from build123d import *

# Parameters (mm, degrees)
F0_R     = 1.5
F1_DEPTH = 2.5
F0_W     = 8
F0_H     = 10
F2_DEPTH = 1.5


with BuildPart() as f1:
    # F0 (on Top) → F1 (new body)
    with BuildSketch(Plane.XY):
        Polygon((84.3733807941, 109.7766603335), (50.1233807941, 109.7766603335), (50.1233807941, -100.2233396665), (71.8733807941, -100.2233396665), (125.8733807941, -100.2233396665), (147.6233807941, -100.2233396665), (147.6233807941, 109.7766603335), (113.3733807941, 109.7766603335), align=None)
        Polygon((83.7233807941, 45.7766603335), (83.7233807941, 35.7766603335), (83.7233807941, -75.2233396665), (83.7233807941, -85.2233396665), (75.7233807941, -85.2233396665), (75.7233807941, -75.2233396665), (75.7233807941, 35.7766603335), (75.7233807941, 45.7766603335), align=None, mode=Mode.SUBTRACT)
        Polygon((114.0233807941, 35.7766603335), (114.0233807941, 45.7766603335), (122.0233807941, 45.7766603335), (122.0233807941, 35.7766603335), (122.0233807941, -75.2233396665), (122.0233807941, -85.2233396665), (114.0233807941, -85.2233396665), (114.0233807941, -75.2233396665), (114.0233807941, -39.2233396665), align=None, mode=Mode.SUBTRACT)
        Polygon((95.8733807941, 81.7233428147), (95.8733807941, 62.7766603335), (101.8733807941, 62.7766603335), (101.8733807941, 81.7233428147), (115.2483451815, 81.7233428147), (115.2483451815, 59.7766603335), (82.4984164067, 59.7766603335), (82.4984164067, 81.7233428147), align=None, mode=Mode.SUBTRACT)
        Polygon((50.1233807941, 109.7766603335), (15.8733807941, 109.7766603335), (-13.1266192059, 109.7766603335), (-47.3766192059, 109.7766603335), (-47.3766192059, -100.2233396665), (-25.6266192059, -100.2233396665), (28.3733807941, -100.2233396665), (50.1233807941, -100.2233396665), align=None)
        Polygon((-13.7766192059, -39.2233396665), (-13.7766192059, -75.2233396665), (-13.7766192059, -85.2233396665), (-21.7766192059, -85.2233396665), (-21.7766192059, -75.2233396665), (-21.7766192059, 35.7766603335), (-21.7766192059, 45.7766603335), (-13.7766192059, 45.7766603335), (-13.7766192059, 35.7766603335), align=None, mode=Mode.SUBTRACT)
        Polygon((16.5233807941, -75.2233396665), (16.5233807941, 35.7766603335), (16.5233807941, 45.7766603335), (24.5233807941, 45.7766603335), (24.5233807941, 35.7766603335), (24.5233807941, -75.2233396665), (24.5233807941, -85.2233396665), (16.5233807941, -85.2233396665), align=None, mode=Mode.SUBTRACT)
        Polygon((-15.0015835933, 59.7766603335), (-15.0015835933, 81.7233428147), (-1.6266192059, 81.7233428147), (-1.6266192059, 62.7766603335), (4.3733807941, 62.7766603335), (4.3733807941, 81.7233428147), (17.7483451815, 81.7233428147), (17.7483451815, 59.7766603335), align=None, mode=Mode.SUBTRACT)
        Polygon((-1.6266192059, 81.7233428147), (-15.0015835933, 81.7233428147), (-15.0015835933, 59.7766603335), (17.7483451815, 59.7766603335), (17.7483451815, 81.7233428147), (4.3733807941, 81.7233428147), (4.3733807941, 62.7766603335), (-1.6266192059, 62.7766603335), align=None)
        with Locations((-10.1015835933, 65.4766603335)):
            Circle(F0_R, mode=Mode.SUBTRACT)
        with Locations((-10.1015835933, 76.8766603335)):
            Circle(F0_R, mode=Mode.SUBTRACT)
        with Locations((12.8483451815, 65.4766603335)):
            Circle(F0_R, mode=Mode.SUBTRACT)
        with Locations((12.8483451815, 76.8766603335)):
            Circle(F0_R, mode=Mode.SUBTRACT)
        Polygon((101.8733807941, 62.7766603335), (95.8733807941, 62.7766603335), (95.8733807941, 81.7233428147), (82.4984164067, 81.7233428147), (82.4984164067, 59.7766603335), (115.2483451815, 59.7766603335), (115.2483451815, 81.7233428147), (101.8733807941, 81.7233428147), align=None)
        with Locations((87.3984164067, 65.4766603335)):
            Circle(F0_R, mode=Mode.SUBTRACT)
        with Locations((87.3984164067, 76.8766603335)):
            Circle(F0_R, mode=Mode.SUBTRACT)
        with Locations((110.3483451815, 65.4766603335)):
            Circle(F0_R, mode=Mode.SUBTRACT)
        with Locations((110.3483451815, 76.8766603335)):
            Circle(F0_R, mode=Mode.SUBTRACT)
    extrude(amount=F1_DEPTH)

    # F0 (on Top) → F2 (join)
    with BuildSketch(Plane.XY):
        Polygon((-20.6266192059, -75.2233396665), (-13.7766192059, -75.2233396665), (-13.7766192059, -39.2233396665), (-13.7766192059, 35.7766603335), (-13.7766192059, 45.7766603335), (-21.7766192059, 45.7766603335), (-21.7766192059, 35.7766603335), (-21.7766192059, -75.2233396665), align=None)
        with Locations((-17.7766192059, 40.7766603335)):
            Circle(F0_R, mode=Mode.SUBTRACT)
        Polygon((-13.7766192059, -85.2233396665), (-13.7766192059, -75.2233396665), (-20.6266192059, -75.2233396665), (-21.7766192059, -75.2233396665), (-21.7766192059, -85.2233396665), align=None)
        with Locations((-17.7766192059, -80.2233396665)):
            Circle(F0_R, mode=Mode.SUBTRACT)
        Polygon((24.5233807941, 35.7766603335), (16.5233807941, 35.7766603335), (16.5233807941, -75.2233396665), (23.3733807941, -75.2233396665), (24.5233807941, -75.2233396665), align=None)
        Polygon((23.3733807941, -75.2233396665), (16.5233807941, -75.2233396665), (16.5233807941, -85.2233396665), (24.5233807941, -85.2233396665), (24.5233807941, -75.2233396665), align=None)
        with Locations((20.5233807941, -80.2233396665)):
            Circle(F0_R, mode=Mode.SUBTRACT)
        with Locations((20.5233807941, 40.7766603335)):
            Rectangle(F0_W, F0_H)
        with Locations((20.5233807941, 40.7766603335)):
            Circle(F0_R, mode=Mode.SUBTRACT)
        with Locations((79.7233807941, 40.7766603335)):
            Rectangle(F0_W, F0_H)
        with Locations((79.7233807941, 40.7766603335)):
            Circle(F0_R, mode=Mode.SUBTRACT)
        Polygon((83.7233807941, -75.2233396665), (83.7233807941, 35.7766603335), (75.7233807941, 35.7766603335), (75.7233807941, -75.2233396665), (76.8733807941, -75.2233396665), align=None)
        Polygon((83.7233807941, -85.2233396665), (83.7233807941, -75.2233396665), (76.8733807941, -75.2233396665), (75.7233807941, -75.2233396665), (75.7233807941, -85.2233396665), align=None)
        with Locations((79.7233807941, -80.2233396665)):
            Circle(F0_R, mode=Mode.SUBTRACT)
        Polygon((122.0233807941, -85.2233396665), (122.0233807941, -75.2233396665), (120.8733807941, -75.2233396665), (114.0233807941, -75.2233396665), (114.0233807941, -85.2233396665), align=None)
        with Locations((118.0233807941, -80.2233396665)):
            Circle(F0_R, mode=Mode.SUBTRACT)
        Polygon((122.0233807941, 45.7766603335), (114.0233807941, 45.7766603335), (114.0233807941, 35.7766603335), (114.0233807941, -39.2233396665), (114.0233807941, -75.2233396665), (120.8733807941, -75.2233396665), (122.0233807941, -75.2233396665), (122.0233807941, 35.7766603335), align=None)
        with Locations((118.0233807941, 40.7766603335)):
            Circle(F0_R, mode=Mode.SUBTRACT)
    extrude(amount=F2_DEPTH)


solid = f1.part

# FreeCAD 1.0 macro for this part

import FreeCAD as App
import Part
import Sketcher

V = App.Vector
Q = App.Units.Quantity

doc = App.newDocument("Part")
params = doc.addObject("Spreadsheet::Sheet", "Params")
for row, (alias, value) in enumerate([
    ("sketch1_diameter", "3 mm"),
    ("sketch1_width", "195 mm"),
    ("sketch1_width2", "8 mm"),
    ("sketch1_height", "210 mm"),
    ("sketch1_height2", "131 mm"),
    ("pad1_length", "2.5 mm"),
    ("sketch2_diameter", "3 mm"),
    ("sketch2_width", "8 mm"),
    ("sketch2_height", "131 mm"),
    ("pad2_length", "1.5 mm"),
], start=1):
    params.set(f"A{row}", alias)
    params.set(f"B{row}", "=" + value)
    params.setAlias(f"B{row}", alias)

body = doc.addObject("PartDesign::Body", "Body")

# Sketch on XY plane
sketch1 = body.newObject("Sketcher::SketchObject", "Sketch")
sketch1.AttachmentSupport = (doc.getObject("XY_Plane"), [""])
sketch1.MapMode = "FlatFace"
sketch1.addGeometry([
    Part.LineSegment(V(147.6, 109.8, 0), V(-47.4, 109.8, 0)),  # 0
    Part.LineSegment(V(-47.4, 109.8, 0), V(-47.4, -100.2, 0)),  # 1
    Part.LineSegment(V(-47.4, -100.2, 0), V(147.6, -100.2, 0)),  # 2
    Part.LineSegment(V(147.6, -100.2, 0), V(147.6, 109.8, 0)),  # 3
    Part.LineSegment(V(-13.8, 45.8, 0), V(-13.8, -85.2, 0)),  # 4
    Part.LineSegment(V(-13.8, -85.2, 0), V(-21.8, -85.2, 0)),  # 5
    Part.LineSegment(V(-21.8, -85.2, 0), V(-21.8, 45.8, 0)),  # 6
    Part.LineSegment(V(-21.8, 45.8, 0), V(-13.8, 45.8, 0)),  # 7
    Part.LineSegment(V(16.5, -85.2, 0), V(16.5, 45.8, 0)),  # 8
    Part.LineSegment(V(16.5, 45.8, 0), V(24.5, 45.8, 0)),  # 9
    Part.LineSegment(V(24.5, 45.8, 0), V(24.5, -85.2, 0)),  # 10
    Part.LineSegment(V(24.5, -85.2, 0), V(16.5, -85.2, 0)),  # 11
    Part.LineSegment(V(75.7, 45.8, 0), V(83.7, 45.8, 0)),  # 12
    Part.LineSegment(V(83.7, 45.8, 0), V(83.7, -85.2, 0)),  # 13
    Part.LineSegment(V(83.7, -85.2, 0), V(75.7, -85.2, 0)),  # 14
    Part.LineSegment(V(75.7, -85.2, 0), V(75.7, 45.8, 0)),  # 15
    Part.LineSegment(V(114, -85.2, 0), V(114, 45.8, 0)),  # 16
    Part.LineSegment(V(114, 45.8, 0), V(122, 45.8, 0)),  # 17
    Part.LineSegment(V(122, 45.8, 0), V(122, -85.2, 0)),  # 18
    Part.LineSegment(V(122, -85.2, 0), V(114, -85.2, 0)),  # 19
    Part.Circle(V(-10.1, 65.5, 0), V(0, 0, 1), 1.5),  # 20
    Part.Circle(V(-10.1, 76.9, 0), V(0, 0, 1), 1.5),  # 21
    Part.Circle(V(12.8, 65.5, 0), V(0, 0, 1), 1.5),  # 22
    Part.Circle(V(12.8, 76.9, 0), V(0, 0, 1), 1.5),  # 23
    Part.Circle(V(87.4, 65.5, 0), V(0, 0, 1), 1.5),  # 24
    Part.Circle(V(87.4, 76.9, 0), V(0, 0, 1), 1.5),  # 25
    Part.Circle(V(110.3, 65.5, 0), V(0, 0, 1), 1.5),  # 26
    Part.Circle(V(110.3, 76.9, 0), V(0, 0, 1), 1.5),  # 27
], False)
sketch1.addConstraint([
    Sketcher.Constraint("Coincident", 0, 2, 1, 1),
    Sketcher.Constraint("Coincident", 1, 2, 2, 1),
    Sketcher.Constraint("Coincident", 2, 2, 3, 1),
    Sketcher.Constraint("Coincident", 3, 2, 0, 1),
    Sketcher.Constraint("Coincident", 4, 2, 5, 1),
    Sketcher.Constraint("Coincident", 5, 2, 6, 1),
    Sketcher.Constraint("Coincident", 6, 2, 7, 1),
    Sketcher.Constraint("Coincident", 7, 2, 4, 1),
    Sketcher.Constraint("Coincident", 8, 2, 9, 1),
    Sketcher.Constraint("Coincident", 9, 2, 10, 1),
    Sketcher.Constraint("Coincident", 10, 2, 11, 1),
    Sketcher.Constraint("Coincident", 11, 2, 8, 1),
    Sketcher.Constraint("Coincident", 12, 2, 13, 1),
    Sketcher.Constraint("Coincident", 13, 2, 14, 1),
    Sketcher.Constraint("Coincident", 14, 2, 15, 1),
    Sketcher.Constraint("Coincident", 15, 2, 12, 1),
    Sketcher.Constraint("Coincident", 16, 2, 17, 1),
    Sketcher.Constraint("Coincident", 17, 2, 18, 1),
    Sketcher.Constraint("Coincident", 18, 2, 19, 1),
    Sketcher.Constraint("Coincident", 19, 2, 16, 1),
    Sketcher.Constraint("Horizontal", 0),
    Sketcher.Constraint("Vertical", 1),
    Sketcher.Constraint("Horizontal", 2),
    Sketcher.Constraint("Vertical", 3),
    Sketcher.Constraint("Vertical", 4),
    Sketcher.Constraint("Horizontal", 5),
    Sketcher.Constraint("Vertical", 6),
    Sketcher.Constraint("Horizontal", 7),
    Sketcher.Constraint("Vertical", 8),
    Sketcher.Constraint("Horizontal", 9),
    Sketcher.Constraint("Vertical", 10),
    Sketcher.Constraint("Horizontal", 11),
    Sketcher.Constraint("Horizontal", 12),
    Sketcher.Constraint("Vertical", 13),
    Sketcher.Constraint("Horizontal", 14),
    Sketcher.Constraint("Vertical", 15),
    Sketcher.Constraint("Vertical", 16),
    Sketcher.Constraint("Horizontal", 17),
    Sketcher.Constraint("Vertical", 18),
    Sketcher.Constraint("Horizontal", 19),
    Sketcher.Constraint("Equal", 20, 21),
    Sketcher.Constraint("Equal", 21, 22),
    Sketcher.Constraint("Equal", 22, 23),
    Sketcher.Constraint("Equal", 23, 24),
    Sketcher.Constraint("Equal", 24, 25),
    Sketcher.Constraint("Equal", 25, 26),
    Sketcher.Constraint("Equal", 26, 27),
    Sketcher.Constraint("Horizontal", 20, 3, 22, 3),
    Sketcher.Constraint("Horizontal", 21, 3, 23, 3),
    Sketcher.Constraint("Horizontal", 22, 3, 24, 3),
    Sketcher.Constraint("Horizontal", 23, 3, 25, 3),
    Sketcher.Constraint("Horizontal", 24, 3, 26, 3),
    Sketcher.Constraint("Horizontal", 25, 3, 27, 3),
    Sketcher.Constraint("Horizontal", 7, 2, 8, 2),
    Sketcher.Constraint("Horizontal", 5, 2, 10, 2),
    Sketcher.Constraint("Horizontal", 9, 2, 12, 2),
    Sketcher.Constraint("Horizontal", 11, 2, 13, 2),
    Sketcher.Constraint("Horizontal", 15, 2, 16, 2),
    Sketcher.Constraint("Horizontal", 14, 2, 18, 2),
    Sketcher.Constraint("Vertical", 20, 3, 21, 3),
    Sketcher.Constraint("Vertical", 22, 3, 23, 3),
    Sketcher.Constraint("Vertical", 24, 3, 25, 3),
    Sketcher.Constraint("Vertical", 26, 3, 27, 3),
    Sketcher.Constraint("Equal", 7, 9),
    Sketcher.Constraint("Equal", 11, 12),
    Sketcher.Constraint("Equal", 14, 17),
    Sketcher.Constraint("Diameter", 20, Q("3 mm")),
    Sketcher.Constraint("DistanceX", 0, 2, 0, 1, Q("195 mm")),
    Sketcher.Constraint("DistanceX", 5, 2, 5, 1, Q("8 mm")),
    Sketcher.Constraint("DistanceY", 1, 2, 1, 1, Q("210 mm")),
    Sketcher.Constraint("DistanceY", 4, 2, 4, 1, Q("131 mm")),
    Sketcher.Constraint("DistanceY", 1, 2, 4, 2, Q("15 mm")),
    Sketcher.Constraint("DistanceY", 20, 3, 21, 3, Q("11.4 mm")),
    Sketcher.Constraint("DistanceX", 20, 3, 24, 3, Q("97.5 mm")),
    Sketcher.Constraint("DistanceX", 22, 3, 26, 3, Q("97.5 mm")),
    Sketcher.Constraint("DistanceY", 21, 3, 0, 2, Q("32.9 mm")),
    Sketcher.Constraint("DistanceX", 1, 2, 4, 2, Q("33.6 mm")),
    Sketcher.Constraint("DistanceX", 7, 2, 8, 2, Q("30.3 mm")),
    Sketcher.Constraint("DistanceX", 9, 2, 12, 2, Q("59.2 mm")),
    Sketcher.Constraint("DistanceX", 12, 2, 16, 2, Q("30.3 mm")),
    Sketcher.Constraint("DistanceY", -1, 1, 20, 3, Q("65.47666 mm")),
    Sketcher.Constraint("DistanceX", 0, 2, -1, 1, Q("47.376619 mm")),
    Sketcher.Constraint("DistanceX", 20, 3, 22, 3, Q("22.949929 mm")),
    Sketcher.Constraint("DistanceX", 20, 3, -1, 1, Q("10.101584 mm")),
])
sketch1.setExpression("Constraints[66]", "Params.sketch1_diameter")
sketch1.setExpression("Constraints[67]", "Params.sketch1_width")
sketch1.setExpression("Constraints[68]", "Params.sketch1_width2")
sketch1.setExpression("Constraints[69]", "Params.sketch1_height")
sketch1.setExpression("Constraints[70]", "Params.sketch1_height2")
pad1 = body.newObject("PartDesign::Pad", "Pad")
pad1.Profile = sketch1
pad1.setExpression("Length", "Params.pad1_length")

# Sketch on XY plane
sketch2 = body.newObject("Sketcher::SketchObject", "Sketch001")
sketch2.AttachmentSupport = (doc.getObject("XY_Plane"), [""])
sketch2.MapMode = "FlatFace"
sketch2.addGeometry([
    Part.LineSegment(V(-13.8, 45.8, 0), V(-21.8, 45.8, 0)),  # 0
    Part.LineSegment(V(-21.8, 45.8, 0), V(-21.8, -85.2, 0)),  # 1
    Part.LineSegment(V(-21.8, -85.2, 0), V(-13.8, -85.2, 0)),  # 2
    Part.LineSegment(V(-13.8, -85.2, 0), V(-13.8, 45.8, 0)),  # 3
    Part.Circle(V(-17.8, -80.2, 0), V(0, 0, 1), 1.5),  # 4
    Part.Circle(V(-17.8, 40.8, 0), V(0, 0, 1), 1.5),  # 5
    Part.LineSegment(V(24.5, -85.2, 0), V(24.5, 45.8, 0)),  # 6
    Part.LineSegment(V(24.5, 45.8, 0), V(16.5, 45.8, 0)),  # 7
    Part.LineSegment(V(16.5, 45.8, 0), V(16.5, -85.2, 0)),  # 8
    Part.LineSegment(V(16.5, -85.2, 0), V(24.5, -85.2, 0)),  # 9
    Part.Circle(V(20.5, -80.2, 0), V(0, 0, 1), 1.5),  # 10
    Part.Circle(V(20.5, 40.8, 0), V(0, 0, 1), 1.5),  # 11
    Part.LineSegment(V(75.7, 45.8, 0), V(75.7, -85.2, 0)),  # 12
    Part.LineSegment(V(75.7, -85.2, 0), V(83.7, -85.2, 0)),  # 13
    Part.LineSegment(V(83.7, -85.2, 0), V(83.7, 45.8, 0)),  # 14
    Part.LineSegment(V(83.7, 45.8, 0), V(75.7, 45.8, 0)),  # 15
    Part.Circle(V(79.7, -80.2, 0), V(0, 0, 1), 1.5),  # 16
    Part.Circle(V(79.7, 40.8, 0), V(0, 0, 1), 1.5),  # 17
    Part.LineSegment(V(122, -85.2, 0), V(122, 45.8, 0)),  # 18
    Part.LineSegment(V(122, 45.8, 0), V(114, 45.8, 0)),  # 19
    Part.LineSegment(V(114, 45.8, 0), V(114, -85.2, 0)),  # 20
    Part.LineSegment(V(114, -85.2, 0), V(122, -85.2, 0)),  # 21
    Part.Circle(V(118, -80.2, 0), V(0, 0, 1), 1.5),  # 22
    Part.Circle(V(118, 40.8, 0), V(0, 0, 1), 1.5),  # 23
], False)
sketch2.addConstraint([
    Sketcher.Constraint("Coincident", 0, 2, 1, 1),
    Sketcher.Constraint("Coincident", 1, 2, 2, 1),
    Sketcher.Constraint("Coincident", 2, 2, 3, 1),
    Sketcher.Constraint("Coincident", 3, 2, 0, 1),
    Sketcher.Constraint("Coincident", 6, 2, 7, 1),
    Sketcher.Constraint("Coincident", 7, 2, 8, 1),
    Sketcher.Constraint("Coincident", 8, 2, 9, 1),
    Sketcher.Constraint("Coincident", 9, 2, 6, 1),
    Sketcher.Constraint("Coincident", 12, 2, 13, 1),
    Sketcher.Constraint("Coincident", 13, 2, 14, 1),
    Sketcher.Constraint("Coincident", 14, 2, 15, 1),
    Sketcher.Constraint("Coincident", 15, 2, 12, 1),
    Sketcher.Constraint("Coincident", 18, 2, 19, 1),
    Sketcher.Constraint("Coincident", 19, 2, 20, 1),
    Sketcher.Constraint("Coincident", 20, 2, 21, 1),
    Sketcher.Constraint("Coincident", 21, 2, 18, 1),
    Sketcher.Constraint("Horizontal", 0),
    Sketcher.Constraint("Vertical", 1),
    Sketcher.Constraint("Horizontal", 2),
    Sketcher.Constraint("Vertical", 3),
    Sketcher.Constraint("Vertical", 6),
    Sketcher.Constraint("Horizontal", 7),
    Sketcher.Constraint("Vertical", 8),
    Sketcher.Constraint("Horizontal", 9),
    Sketcher.Constraint("Vertical", 12),
    Sketcher.Constraint("Horizontal", 13),
    Sketcher.Constraint("Vertical", 14),
    Sketcher.Constraint("Horizontal", 15),
    Sketcher.Constraint("Vertical", 18),
    Sketcher.Constraint("Horizontal", 19),
    Sketcher.Constraint("Vertical", 20),
    Sketcher.Constraint("Horizontal", 21),
    Sketcher.Constraint("Equal", 4, 5),
    Sketcher.Constraint("Equal", 5, 10),
    Sketcher.Constraint("Equal", 10, 11),
    Sketcher.Constraint("Equal", 11, 16),
    Sketcher.Constraint("Equal", 16, 17),
    Sketcher.Constraint("Equal", 17, 22),
    Sketcher.Constraint("Equal", 22, 23),
    Sketcher.Constraint("Horizontal", 4, 3, 10, 3),
    Sketcher.Constraint("Horizontal", 5, 3, 11, 3),
    Sketcher.Constraint("Horizontal", 10, 3, 16, 3),
    Sketcher.Constraint("Horizontal", 11, 3, 17, 3),
    Sketcher.Constraint("Horizontal", 16, 3, 22, 3),
    Sketcher.Constraint("Horizontal", 17, 3, 23, 3),
    Sketcher.Constraint("Horizontal", 3, 2, 6, 2),
    Sketcher.Constraint("Horizontal", 2, 2, 8, 2),
    Sketcher.Constraint("Horizontal", 9, 2, 12, 2),
    Sketcher.Constraint("Horizontal", 7, 2, 14, 2),
    Sketcher.Constraint("Horizontal", 15, 2, 18, 2),
    Sketcher.Constraint("Horizontal", 13, 2, 20, 2),
    Sketcher.Constraint("Vertical", 4, 3, 5, 3),
    Sketcher.Constraint("Vertical", 10, 3, 11, 3),
    Sketcher.Constraint("Vertical", 16, 3, 17, 3),
    Sketcher.Constraint("Vertical", 22, 3, 23, 3),
    Sketcher.Constraint("Equal", 2, 7),
    Sketcher.Constraint("Equal", 9, 13),
    Sketcher.Constraint("Equal", 15, 19),
    Sketcher.Constraint("Diameter", 4, Q("3 mm")),
    Sketcher.Constraint("DistanceX", 0, 2, 0, 1, Q("8 mm")),
    Sketcher.Constraint("DistanceY", 1, 2, 1, 1, Q("131 mm")),
    Sketcher.Constraint("DistanceY", 4, 3, 5, 3, Q("121 mm")),
    Sketcher.Constraint("DistanceX", 0, 2, 5, 3, Q("4 mm")),
    Sketcher.Constraint("DistanceY", 5, 3, 0, 2, Q("5 mm")),
    Sketcher.Constraint("DistanceX", 11, 3, 6, 2, Q("4 mm")),
    Sketcher.Constraint("DistanceX", 12, 2, 16, 3, Q("4 mm")),
    Sketcher.Constraint("DistanceX", 23, 3, 18, 2, Q("4 mm")),
    Sketcher.Constraint("DistanceX", 4, 3, 10, 3, Q("38.3 mm")),
    Sketcher.Constraint("DistanceX", 10, 3, 16, 3, Q("59.2 mm")),
    Sketcher.Constraint("DistanceX", 16, 3, 22, 3, Q("38.3 mm")),
    Sketcher.Constraint("DistanceX", 4, 3, -1, 1, Q("17.776619 mm")),
    Sketcher.Constraint("DistanceY", 4, 3, -1, 1, Q("80.22334 mm")),
])
sketch2.setExpression("Constraints[58]", "Params.sketch2_diameter")
sketch2.setExpression("Constraints[59]", "Params.sketch2_width")
sketch2.setExpression("Constraints[60]", "Params.sketch2_height")
pad2 = body.newObject("PartDesign::Pad", "Pad001")
pad2.Profile = sketch2
pad2.setExpression("Length", "Params.pad2_length")

doc.recompute()
